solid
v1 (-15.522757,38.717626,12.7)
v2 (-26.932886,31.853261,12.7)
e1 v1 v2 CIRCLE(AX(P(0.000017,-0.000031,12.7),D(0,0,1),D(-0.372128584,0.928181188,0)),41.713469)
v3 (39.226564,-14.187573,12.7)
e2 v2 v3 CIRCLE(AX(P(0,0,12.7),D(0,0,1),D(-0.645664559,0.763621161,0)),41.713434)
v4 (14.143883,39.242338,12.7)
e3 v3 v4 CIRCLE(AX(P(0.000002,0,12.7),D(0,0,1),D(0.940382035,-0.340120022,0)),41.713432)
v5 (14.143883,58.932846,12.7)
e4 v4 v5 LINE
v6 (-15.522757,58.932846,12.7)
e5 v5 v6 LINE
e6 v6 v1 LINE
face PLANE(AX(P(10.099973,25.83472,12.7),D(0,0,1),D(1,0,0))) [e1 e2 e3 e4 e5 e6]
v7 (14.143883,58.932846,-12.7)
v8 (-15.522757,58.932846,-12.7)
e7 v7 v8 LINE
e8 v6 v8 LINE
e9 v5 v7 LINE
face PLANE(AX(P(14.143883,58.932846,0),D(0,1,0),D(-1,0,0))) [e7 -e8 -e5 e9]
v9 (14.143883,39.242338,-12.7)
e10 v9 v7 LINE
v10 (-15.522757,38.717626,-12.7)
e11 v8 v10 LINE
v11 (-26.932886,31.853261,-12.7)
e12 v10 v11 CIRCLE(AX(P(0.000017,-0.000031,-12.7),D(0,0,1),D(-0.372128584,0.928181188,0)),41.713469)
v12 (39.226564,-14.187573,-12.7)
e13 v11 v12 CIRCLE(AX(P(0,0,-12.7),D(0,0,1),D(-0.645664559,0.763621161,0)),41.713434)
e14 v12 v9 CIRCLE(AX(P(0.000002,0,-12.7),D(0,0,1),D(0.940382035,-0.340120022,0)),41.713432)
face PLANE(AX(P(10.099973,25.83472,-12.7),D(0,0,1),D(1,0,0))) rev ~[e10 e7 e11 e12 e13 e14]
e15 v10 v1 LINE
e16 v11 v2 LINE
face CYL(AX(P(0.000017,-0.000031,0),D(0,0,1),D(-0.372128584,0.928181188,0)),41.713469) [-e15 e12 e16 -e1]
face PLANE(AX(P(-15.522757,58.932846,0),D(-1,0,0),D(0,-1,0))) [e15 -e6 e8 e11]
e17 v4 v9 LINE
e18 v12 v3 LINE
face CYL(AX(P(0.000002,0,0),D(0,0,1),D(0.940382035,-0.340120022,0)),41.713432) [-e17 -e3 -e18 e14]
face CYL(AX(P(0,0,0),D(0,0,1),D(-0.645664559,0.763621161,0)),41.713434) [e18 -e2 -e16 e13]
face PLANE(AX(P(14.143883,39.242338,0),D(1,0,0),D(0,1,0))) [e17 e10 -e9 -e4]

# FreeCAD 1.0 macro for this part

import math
import FreeCAD as App
import Part
import Sketcher
Q = App.Units.Quantity

doc = App.newDocument("Part")
body = doc.addObject("PartDesign::Body", "Body")

# Sketch on XY plane
sketch1 = body.newObject("Sketcher::SketchObject", "Sketch")
sketch1.AttachmentSupport = (doc.getObject("XY_Plane"), [""])
sketch1.MapMode = "FlatFace"
sketch1.addGeometry(Part.LineSegment(App.Vector(-15.522757, 58.932846, 0), App.Vector(-15.522757, 38.717626, 0)), False)
sketch1.addGeometry(Part.ArcOfCircle(Part.Circle(App.Vector(0.000017, -0.000031, 0), App.Vector(0, 0, 1), 41.713469), math.radians(111.846953), math.radians(130.21551)), False)
sketch1.addGeometry(Part.ArcOfCircle(Part.Circle(App.Vector(0, 0, 0), App.Vector(0, 0, 1), 41.713434), math.radians(130.21552), math.radians(340.115815)), False)
sketch1.addGeometry(Part.ArcOfCircle(Part.Circle(App.Vector(0.000002, 0, 0), App.Vector(0, 0, 1), 41.713432), math.radians(-19.884187), math.radians(70.179619)), False)
sketch1.addGeometry(Part.LineSegment(App.Vector(14.143883, 39.242338, 0), App.Vector(14.143883, 58.932846, 0)), False)
sketch1.addGeometry(Part.LineSegment(App.Vector(14.143883, 58.932846, 0), App.Vector(-15.522757, 58.932846, 0)), False)
sketch1.addConstraint(Sketcher.Constraint("Coincident", 0, 2, 1, 1))
sketch1.addConstraint(Sketcher.Constraint("Tangent", 1, 2, 2, 1))
sketch1.addConstraint(Sketcher.Constraint("Tangent", 2, 2, 3, 1))
sketch1.addConstraint(Sketcher.Constraint("Coincident", 3, 2, 4, 1))
sketch1.addConstraint(Sketcher.Constraint("Coincident", 4, 2, 5, 1))
sketch1.addConstraint(Sketcher.Constraint("Coincident", 5, 2, 0, 1))
sketch1.addConstraint(Sketcher.Constraint("Vertical", 0))
sketch1.addConstraint(Sketcher.Constraint("Vertical", 4))
sketch1.addConstraint(Sketcher.Constraint("Horizontal", 5))
sketch1.addConstraint(Sketcher.Constraint("Coincident", 2, 3, -1, 1))
sketch1.addConstraint(Sketcher.Constraint("Equal", 2, 3))
sketch1.addConstraint(Sketcher.Constraint("Radius", 1, 41.713469))
sketch1.addConstraint(Sketcher.Constraint("Radius", 2, 41.713434))
sketch1.addConstraint(Sketcher.Constraint("DistanceX", 5, 2, 5, 1, 29.66664))
sketch1.addConstraint(Sketcher.Constraint("DistanceY", 0, 2, 0, 1, 20.21522))
sketch1.addConstraint(Sketcher.Constraint("DistanceY", 4, 1, 4, 2, 19.690508))
sketch1.addConstraint(Sketcher.Constraint("DistanceY", 2, 2, 0, 2, 52.905199))
sketch1.addConstraint(Sketcher.Constraint("DistanceY", -1, 1, 1, 2, 31.853261))
pad1 = body.newObject("PartDesign::Pad", "Pad")
pad1.Profile = sketch1
pad1.Length = Q("1 in")
pad1.Midplane = True

doc.recompute()
